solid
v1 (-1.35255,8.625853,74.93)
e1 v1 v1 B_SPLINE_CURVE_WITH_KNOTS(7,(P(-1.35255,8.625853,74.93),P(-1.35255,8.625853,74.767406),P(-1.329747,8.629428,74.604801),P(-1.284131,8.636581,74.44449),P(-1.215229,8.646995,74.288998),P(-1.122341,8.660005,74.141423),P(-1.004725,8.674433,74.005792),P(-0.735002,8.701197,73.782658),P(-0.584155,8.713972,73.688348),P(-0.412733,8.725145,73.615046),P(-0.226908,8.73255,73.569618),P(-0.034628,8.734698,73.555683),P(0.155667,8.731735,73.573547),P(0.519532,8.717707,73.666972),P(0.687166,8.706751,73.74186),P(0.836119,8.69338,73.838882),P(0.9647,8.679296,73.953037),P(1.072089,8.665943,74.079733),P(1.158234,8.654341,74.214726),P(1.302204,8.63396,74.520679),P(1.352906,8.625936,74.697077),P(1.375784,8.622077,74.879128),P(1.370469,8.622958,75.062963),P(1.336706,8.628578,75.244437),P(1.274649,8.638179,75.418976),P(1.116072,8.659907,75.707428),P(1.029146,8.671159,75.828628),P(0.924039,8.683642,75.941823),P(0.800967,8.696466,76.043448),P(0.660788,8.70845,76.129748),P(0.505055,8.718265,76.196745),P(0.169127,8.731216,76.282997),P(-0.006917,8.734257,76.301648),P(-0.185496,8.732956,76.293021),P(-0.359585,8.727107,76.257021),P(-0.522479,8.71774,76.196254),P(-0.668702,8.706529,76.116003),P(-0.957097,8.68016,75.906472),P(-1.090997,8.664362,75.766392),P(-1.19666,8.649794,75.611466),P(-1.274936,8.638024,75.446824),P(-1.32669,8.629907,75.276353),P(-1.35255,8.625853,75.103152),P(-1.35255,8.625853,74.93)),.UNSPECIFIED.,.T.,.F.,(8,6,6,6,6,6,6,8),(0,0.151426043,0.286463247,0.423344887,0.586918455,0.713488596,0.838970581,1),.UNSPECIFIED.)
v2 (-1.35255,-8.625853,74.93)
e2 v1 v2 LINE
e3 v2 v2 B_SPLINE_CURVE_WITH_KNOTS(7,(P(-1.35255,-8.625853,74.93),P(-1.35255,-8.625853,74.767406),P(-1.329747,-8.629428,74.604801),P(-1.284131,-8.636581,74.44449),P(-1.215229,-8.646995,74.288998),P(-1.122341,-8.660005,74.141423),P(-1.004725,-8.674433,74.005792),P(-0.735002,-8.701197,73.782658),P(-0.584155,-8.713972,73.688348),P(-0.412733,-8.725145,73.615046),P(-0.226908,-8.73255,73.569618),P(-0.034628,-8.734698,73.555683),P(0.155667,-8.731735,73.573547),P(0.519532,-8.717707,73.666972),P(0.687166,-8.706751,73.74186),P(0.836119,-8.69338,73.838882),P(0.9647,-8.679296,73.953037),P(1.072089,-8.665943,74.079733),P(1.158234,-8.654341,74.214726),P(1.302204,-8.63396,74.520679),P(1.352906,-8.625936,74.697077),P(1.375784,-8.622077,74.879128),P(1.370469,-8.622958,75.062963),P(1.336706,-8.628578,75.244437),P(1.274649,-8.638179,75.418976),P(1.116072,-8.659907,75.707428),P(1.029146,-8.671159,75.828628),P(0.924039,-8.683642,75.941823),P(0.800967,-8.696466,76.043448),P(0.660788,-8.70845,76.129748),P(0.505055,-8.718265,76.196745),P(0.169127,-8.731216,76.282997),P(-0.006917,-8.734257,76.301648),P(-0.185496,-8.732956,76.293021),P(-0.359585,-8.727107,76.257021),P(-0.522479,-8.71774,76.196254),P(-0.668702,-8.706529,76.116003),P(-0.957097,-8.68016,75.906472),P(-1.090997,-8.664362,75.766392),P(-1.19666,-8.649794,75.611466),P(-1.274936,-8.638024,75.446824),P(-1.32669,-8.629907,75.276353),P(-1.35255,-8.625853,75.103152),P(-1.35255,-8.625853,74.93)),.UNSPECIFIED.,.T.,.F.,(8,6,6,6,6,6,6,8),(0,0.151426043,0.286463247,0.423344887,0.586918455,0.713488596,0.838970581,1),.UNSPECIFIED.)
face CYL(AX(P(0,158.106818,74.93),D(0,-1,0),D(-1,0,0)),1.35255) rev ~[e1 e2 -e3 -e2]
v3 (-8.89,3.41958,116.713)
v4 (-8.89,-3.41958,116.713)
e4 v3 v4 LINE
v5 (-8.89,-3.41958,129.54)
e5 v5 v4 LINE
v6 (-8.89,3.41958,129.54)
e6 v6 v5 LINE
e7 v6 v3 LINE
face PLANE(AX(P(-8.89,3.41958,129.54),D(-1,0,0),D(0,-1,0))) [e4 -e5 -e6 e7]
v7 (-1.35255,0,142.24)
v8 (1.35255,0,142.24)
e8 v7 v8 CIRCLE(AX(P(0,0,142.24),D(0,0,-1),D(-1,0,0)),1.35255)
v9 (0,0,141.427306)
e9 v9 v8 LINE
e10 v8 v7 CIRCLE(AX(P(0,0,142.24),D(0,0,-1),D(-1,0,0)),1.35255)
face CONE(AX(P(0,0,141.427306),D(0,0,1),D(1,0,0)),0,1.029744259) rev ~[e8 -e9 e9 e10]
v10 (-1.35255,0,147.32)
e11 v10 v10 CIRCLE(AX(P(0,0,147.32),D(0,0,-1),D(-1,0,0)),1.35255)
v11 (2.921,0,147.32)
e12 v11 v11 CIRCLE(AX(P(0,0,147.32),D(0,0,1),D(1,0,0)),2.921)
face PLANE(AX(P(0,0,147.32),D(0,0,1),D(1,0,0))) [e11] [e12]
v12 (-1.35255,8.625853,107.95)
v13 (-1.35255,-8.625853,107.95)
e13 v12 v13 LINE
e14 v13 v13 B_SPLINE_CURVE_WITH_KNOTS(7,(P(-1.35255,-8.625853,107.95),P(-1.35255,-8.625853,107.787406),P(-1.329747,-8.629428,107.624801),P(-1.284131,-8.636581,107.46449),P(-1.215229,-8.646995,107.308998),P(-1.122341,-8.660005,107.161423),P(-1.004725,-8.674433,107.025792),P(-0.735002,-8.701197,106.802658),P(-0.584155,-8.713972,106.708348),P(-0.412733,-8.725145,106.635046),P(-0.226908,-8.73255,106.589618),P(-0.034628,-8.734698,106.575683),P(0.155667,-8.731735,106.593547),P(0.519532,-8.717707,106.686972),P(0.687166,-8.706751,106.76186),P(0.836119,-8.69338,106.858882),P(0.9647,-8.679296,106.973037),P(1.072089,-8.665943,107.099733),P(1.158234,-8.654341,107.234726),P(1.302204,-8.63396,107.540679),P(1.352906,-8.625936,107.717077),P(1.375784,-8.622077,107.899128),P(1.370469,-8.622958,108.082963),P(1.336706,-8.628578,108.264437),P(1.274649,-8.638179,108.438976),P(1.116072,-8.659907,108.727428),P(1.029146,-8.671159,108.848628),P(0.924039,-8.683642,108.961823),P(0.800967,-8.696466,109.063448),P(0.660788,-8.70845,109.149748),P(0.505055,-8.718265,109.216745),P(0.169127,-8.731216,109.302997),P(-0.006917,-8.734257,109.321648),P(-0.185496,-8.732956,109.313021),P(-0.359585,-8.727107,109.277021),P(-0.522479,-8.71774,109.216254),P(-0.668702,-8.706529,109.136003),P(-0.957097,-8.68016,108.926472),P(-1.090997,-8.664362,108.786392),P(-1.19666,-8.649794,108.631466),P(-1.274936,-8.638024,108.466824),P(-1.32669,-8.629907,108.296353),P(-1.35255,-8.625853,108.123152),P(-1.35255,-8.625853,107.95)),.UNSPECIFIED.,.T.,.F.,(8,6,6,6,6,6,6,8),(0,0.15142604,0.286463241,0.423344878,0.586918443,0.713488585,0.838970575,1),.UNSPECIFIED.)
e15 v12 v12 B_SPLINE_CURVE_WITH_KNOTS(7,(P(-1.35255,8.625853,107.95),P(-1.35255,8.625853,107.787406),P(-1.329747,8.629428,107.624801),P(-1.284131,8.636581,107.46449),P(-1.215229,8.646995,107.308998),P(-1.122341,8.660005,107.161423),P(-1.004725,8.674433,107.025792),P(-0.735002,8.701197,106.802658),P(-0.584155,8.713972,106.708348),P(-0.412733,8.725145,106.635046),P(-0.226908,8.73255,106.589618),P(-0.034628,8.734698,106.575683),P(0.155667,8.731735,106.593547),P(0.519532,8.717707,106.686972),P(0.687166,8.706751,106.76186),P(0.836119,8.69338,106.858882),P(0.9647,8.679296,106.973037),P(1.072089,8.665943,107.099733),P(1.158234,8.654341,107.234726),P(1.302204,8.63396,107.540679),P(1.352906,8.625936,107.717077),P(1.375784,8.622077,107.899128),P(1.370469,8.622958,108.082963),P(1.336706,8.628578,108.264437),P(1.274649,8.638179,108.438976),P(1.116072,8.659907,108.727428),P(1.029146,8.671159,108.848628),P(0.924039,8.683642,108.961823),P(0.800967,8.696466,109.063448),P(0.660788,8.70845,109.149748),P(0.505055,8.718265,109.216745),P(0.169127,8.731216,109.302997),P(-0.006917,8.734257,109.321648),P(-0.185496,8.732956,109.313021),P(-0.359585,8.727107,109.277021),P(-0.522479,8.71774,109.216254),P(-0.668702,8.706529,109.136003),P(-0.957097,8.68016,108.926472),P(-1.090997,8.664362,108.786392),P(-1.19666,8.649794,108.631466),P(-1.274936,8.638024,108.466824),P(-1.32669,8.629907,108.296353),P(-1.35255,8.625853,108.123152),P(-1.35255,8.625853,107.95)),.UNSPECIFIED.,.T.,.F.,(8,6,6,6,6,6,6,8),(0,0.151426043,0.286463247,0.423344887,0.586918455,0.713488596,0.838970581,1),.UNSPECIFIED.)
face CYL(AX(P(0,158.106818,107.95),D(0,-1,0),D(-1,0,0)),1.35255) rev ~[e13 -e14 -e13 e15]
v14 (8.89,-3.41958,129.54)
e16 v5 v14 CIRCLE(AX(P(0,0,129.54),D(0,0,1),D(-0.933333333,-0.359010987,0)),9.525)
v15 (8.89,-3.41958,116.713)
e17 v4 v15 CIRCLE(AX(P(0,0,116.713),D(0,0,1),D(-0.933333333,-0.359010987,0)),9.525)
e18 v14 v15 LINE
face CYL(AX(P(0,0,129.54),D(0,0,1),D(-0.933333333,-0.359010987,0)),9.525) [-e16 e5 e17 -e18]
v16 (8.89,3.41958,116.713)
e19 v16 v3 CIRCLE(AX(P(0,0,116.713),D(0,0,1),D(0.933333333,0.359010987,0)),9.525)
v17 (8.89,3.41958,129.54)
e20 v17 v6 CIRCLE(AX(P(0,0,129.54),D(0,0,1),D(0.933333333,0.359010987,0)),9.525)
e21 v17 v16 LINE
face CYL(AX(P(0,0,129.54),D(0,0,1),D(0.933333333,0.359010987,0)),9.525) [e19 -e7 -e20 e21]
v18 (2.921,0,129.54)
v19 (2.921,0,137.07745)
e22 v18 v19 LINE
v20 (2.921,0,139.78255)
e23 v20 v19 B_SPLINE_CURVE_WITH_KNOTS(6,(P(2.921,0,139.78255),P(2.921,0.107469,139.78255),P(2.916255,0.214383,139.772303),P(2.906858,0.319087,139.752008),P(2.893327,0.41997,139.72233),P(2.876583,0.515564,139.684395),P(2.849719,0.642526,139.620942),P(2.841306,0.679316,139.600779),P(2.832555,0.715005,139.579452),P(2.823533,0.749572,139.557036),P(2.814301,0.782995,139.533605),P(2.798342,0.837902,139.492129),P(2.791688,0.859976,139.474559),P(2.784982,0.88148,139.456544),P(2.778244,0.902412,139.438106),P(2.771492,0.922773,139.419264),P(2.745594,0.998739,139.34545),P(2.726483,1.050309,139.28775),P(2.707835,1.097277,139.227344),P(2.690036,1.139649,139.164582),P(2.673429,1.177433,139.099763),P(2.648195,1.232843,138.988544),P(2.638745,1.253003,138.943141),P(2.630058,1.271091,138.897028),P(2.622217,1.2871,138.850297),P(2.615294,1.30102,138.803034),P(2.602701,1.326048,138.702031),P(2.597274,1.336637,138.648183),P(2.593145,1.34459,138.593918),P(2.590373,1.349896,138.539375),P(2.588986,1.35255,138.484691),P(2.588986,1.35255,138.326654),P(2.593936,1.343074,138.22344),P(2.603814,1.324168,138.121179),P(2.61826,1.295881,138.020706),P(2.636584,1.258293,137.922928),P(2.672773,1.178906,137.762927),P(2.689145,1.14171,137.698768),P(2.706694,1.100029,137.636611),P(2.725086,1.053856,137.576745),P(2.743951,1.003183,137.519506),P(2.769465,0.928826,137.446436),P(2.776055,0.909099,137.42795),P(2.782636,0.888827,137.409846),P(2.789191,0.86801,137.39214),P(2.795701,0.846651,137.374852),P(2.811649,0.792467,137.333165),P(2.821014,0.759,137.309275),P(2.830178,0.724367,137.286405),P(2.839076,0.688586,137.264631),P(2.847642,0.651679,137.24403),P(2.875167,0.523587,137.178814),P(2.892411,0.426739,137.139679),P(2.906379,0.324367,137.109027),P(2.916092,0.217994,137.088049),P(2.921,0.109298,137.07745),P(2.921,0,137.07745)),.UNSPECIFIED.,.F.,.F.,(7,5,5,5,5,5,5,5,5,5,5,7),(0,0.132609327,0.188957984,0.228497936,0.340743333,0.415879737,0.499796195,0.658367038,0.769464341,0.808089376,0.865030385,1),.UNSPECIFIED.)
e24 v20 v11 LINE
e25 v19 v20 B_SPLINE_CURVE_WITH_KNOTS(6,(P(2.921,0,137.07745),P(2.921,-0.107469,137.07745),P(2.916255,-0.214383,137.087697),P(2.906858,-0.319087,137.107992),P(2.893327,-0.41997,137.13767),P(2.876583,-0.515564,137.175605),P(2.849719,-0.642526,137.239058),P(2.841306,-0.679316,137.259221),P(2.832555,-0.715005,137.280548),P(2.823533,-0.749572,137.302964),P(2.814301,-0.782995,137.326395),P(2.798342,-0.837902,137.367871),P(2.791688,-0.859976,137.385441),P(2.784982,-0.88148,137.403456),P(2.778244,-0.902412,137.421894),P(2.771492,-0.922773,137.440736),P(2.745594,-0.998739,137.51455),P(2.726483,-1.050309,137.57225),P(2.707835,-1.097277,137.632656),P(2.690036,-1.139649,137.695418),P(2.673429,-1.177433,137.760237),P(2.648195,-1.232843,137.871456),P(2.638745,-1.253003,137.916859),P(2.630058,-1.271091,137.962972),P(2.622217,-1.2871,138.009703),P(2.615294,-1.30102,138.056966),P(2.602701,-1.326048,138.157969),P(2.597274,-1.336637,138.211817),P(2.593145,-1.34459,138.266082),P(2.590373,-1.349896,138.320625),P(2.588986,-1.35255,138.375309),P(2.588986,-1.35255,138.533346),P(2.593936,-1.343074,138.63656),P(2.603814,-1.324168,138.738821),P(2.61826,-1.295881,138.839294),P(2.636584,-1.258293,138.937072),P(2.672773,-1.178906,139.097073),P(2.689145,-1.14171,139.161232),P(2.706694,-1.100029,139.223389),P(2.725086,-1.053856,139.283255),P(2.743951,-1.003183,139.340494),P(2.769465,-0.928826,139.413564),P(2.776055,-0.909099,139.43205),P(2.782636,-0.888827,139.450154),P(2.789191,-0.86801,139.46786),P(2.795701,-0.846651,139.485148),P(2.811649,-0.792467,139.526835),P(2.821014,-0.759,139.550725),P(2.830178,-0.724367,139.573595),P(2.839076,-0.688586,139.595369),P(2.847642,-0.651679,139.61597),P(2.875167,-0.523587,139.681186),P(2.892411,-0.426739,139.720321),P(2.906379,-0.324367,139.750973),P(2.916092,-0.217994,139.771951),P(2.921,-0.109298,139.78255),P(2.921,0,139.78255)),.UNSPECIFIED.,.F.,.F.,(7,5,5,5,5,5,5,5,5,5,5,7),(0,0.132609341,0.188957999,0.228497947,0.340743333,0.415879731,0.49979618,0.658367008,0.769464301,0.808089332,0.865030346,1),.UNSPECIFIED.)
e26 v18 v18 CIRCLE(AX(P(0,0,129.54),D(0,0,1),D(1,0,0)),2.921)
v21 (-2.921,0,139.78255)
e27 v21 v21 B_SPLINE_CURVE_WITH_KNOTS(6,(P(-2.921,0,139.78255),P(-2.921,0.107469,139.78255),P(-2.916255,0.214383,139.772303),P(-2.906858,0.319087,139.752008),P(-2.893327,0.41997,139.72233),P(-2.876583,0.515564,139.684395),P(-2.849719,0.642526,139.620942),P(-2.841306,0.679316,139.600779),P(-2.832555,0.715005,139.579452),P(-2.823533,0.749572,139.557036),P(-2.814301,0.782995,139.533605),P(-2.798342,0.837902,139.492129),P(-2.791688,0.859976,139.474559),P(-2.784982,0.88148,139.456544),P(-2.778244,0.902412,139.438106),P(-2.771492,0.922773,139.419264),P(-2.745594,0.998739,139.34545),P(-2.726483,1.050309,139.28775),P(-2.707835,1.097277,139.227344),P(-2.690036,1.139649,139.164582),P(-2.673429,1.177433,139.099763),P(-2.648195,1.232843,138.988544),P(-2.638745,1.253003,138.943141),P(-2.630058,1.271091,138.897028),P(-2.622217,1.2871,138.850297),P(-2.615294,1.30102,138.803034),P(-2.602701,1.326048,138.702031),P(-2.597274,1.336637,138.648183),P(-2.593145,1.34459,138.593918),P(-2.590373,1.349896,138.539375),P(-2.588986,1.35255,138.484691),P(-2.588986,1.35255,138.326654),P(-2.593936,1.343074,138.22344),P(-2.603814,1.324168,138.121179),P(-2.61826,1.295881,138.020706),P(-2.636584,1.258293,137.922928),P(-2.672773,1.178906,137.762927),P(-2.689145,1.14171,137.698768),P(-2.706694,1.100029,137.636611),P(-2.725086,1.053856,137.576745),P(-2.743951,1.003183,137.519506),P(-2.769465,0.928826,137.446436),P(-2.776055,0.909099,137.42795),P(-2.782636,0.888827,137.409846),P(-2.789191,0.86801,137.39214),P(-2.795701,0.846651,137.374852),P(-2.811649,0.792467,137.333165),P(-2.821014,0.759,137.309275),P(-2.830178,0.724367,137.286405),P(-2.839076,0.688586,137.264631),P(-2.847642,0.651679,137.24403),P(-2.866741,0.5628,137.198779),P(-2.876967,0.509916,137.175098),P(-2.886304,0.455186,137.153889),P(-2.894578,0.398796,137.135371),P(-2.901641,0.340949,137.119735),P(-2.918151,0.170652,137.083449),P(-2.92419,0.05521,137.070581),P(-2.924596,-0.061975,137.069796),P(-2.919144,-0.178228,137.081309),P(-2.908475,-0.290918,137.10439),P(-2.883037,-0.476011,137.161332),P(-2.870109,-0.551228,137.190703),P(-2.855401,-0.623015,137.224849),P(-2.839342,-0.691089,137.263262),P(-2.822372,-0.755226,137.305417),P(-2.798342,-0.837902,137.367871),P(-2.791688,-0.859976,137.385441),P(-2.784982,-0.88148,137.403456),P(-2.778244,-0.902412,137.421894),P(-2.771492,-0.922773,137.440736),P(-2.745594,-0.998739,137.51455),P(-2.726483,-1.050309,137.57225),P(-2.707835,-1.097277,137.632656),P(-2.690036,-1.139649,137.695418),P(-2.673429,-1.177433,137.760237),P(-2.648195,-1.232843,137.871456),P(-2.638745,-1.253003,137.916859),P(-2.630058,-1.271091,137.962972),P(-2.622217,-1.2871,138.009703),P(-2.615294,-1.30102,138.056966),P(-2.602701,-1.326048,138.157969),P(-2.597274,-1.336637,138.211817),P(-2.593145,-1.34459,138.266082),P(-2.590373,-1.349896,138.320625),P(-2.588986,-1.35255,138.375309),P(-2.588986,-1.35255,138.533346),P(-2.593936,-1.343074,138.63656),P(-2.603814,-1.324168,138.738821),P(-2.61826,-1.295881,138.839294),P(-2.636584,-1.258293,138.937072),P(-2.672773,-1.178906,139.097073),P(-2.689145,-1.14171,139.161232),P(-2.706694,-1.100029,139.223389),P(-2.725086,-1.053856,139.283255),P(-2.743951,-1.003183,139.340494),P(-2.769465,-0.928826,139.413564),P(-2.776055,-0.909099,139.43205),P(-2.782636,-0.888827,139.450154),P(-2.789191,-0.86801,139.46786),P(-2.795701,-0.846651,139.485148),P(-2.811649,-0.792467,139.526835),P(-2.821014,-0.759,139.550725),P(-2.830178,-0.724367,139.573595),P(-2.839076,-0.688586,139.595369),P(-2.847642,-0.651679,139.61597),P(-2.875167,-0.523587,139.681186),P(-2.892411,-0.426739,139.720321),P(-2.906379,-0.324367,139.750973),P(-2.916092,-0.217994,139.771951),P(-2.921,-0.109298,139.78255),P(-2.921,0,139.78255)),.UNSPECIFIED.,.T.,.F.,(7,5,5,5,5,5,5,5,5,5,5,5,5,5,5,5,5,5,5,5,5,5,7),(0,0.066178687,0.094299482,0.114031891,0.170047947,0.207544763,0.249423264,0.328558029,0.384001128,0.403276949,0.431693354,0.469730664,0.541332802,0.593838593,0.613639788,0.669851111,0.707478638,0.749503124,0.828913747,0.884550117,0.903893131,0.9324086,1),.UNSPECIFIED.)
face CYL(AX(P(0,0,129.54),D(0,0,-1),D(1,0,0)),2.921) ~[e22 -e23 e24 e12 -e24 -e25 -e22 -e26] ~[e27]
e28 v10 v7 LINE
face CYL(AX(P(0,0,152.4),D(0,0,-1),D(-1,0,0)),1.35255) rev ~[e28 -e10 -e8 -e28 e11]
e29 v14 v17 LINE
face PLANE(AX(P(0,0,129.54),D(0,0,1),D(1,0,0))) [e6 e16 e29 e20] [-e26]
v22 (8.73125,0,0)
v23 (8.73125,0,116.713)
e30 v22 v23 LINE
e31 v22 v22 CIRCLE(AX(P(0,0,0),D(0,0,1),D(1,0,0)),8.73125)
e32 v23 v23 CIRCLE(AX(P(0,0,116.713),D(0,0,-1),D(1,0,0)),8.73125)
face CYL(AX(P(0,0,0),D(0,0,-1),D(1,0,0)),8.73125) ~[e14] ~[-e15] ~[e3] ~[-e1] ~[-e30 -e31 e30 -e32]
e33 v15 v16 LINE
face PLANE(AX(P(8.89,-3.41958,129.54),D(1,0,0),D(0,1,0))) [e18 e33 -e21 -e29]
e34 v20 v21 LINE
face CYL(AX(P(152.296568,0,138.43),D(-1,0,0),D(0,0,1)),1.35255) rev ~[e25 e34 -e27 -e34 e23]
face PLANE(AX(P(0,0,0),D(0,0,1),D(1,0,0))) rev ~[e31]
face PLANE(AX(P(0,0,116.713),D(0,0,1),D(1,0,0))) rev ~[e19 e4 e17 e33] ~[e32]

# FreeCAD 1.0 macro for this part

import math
import FreeCAD as App
import Part
import Sketcher

V = App.Vector
Q = App.Units.Quantity

doc = App.newDocument("Part")
body = doc.addObject("PartDesign::Body", "Body")

# Sketch on XY plane
sketch1 = doc.addObject("Sketcher::SketchObject", "Sketch")
body.addObject(sketch1)
sketch1.AttachmentSupport = (doc.XY_Plane, [""])
sketch1.MapMode = "FlatFace"
sketch1.addGeometry(Part.Circle(V(0, 0, 0), V(0, 0, 1), 9), False)
sketch1.addConstraint([
    Sketcher.Constraint("Coincident", 0, 3, -1, 1),
    Sketcher.Constraint("Diameter", 0, Q("0.6875 in")),
])
pad1 = doc.addObject("PartDesign::Pad", "Pad")
body.addObject(pad1)
pad1.Profile = sketch1
pad1.Length = Q("5.1 in")

# Sketch on XY plane
sketch2 = doc.addObject("Sketcher::SketchObject", "Sketch001")
body.addObject(sketch2)
sketch2.AttachmentSupport = (doc.XY_Plane, [""])
sketch2.MapMode = "FlatFace"
sketch2.AttachmentOffset = App.Placement(V(0, 0, 5.1 * 25.4), App.Rotation())
sketch2.addGeometry(Part.Circle(V(0, 0, 0), V(0, 0, 1), 2.9), False)
sketch2.addConstraint([
    Sketcher.Constraint("Coincident", 0, 3, -1, 1),
    Sketcher.Constraint("Diameter", 0, Q("0.23 in")),
])
pad2 = doc.addObject("PartDesign::Pad", "Pad001")
body.addObject(pad2)
pad2.Profile = sketch2
pad2.Length = Q("0.7 in")

# Sketch on XZ plane
sketch3 = doc.addObject("Sketcher::SketchObject", "Sketch002")
body.addObject(sketch3)
sketch3.AttachmentSupport = (doc.XZ_Plane, [""])
sketch3.MapMode = "FlatFace"
sketch3.AttachmentOffset = App.Placement(V(0, 0, -0.34375 * 25.4), App.Rotation())
sketch3.addGeometry([
    Part.Circle(V(0, 74.9, 0), V(0, 0, 1), 1.4),
    Part.Circle(V(0, 108, 0), V(0, 0, 1), 1.4),
], False)
sketch3.addConstraint([
    Sketcher.Constraint("Equal", 0, 1),
    Sketcher.Constraint("PointOnObject", 0, 3, -2),
    Sketcher.Constraint("PointOnObject", 1, 3, -2),
    Sketcher.Constraint("Diameter", 0, Q("0.1065 in")),
    Sketcher.Constraint("DistanceY", 0, 3, 1, 3, Q("1.3 in")),
    Sketcher.Constraint("DistanceY", -1, 1, 0, 3, Q("2.95 in")),
])
doc.recompute()
hole = doc.addObject("PartDesign::Hole", "Hole")
body.addObject(hole)
hole.Profile = sketch3
hole.ThreadType = "None"
hole.Diameter = Q("0.1065 in")
hole.DepthType = "ThroughAll"
hole.Reversed = True

# Sketch on YZ plane
sketch4 = doc.addObject("Sketcher::SketchObject", "Sketch003")
body.addObject(sketch4)
sketch4.AttachmentSupport = (doc.YZ_Plane, [""])
sketch4.MapMode = "FlatFace"
sketch4.AttachmentOffset = App.Placement(V(0, 0, 0.115 * 25.4), App.Rotation())
sketch4.addGeometry(Part.Circle(V(0, 138.4, 0), V(0, 0, 1), 1.4), False)
sketch4.addConstraint([
    Sketcher.Constraint("PointOnObject", 0, 3, -2),
    Sketcher.Constraint("Diameter", 0, Q("0.1065 in")),
    Sketcher.Constraint("DistanceY", -1, 1, 0, 3, Q("5.45 in")),
])
doc.recompute()
hole2 = doc.addObject("PartDesign::Hole", "Hole001")
body.addObject(hole2)
hole2.Profile = sketch4
hole2.ThreadType = "None"
hole2.Diameter = Q("0.1065 in")
hole2.DepthType = "ThroughAll"

# Sketch on XY plane
sketch5 = doc.addObject("Sketcher::SketchObject", "Sketch004")
body.addObject(sketch5)
sketch5.AttachmentSupport = (doc.XY_Plane, [""])
sketch5.MapMode = "FlatFace"
sketch5.AttachmentOffset = App.Placement(V(0, 0, 5.1 * 25.4), App.Rotation())
sketch5.addGeometry([
    Part.LineSegment(V(9, -3, 0), V(9, 3, 0)),
    Part.ArcOfCircle(Part.Circle(V(0, 0, 0), V(0, 0, 1), 10), math.radians(21), math.radians(159)),
    Part.LineSegment(V(-9, 3, 0), V(-9, -3, 0)),
    Part.ArcOfCircle(Part.Circle(V(0, 0, 0), V(0, 0, 1), 10), math.radians(-159), math.radians(-21)),
], False)
sketch5.addConstraint([
    Sketcher.Constraint("Coincident", 0, 2, 1, 1),
    Sketcher.Constraint("Coincident", 1, 2, 2, 1),
    Sketcher.Constraint("Coincident", 2, 2, 3, 1),
    Sketcher.Constraint("Coincident", 3, 2, 0, 1),
    Sketcher.Constraint("Vertical", 0),
    Sketcher.Constraint("Vertical", 2),
    Sketcher.Constraint("Coincident", 1, 3, -1, 1),
    Sketcher.Constraint("Coincident", 3, 3, -1, 1),
    Sketcher.Constraint("Equal", 1, 3),
    Sketcher.Constraint("Horizontal", 0, 2, 1, 2),
    Sketcher.Constraint("Radius", 1, Q("0.375 in")),
    Sketcher.Constraint("DistanceX", 1, 2, 0, 2, Q("0.7 in")),
])
pad3 = doc.addObject("PartDesign::Pad", "Pad002")
body.addObject(pad3)
pad3.Profile = sketch5
pad3.Length = Q("0.505 in")
pad3.Reversed = True

# Sketch on XY plane
sketch6 = doc.addObject("Sketcher::SketchObject", "Sketch005")
body.addObject(sketch6)
sketch6.AttachmentSupport = (doc.XY_Plane, [""])
sketch6.MapMode = "FlatFace"
sketch6.AttachmentOffset = App.Placement(V(0, 0, 5.8 * 25.4), App.Rotation())
sketch6.addGeometry(Part.Circle(V(0, 0, 0), V(0, 0, 1), 1.4), False)
sketch6.addConstraint([
    Sketcher.Constraint("Coincident", 0, 3, -1, 1),
    Sketcher.Constraint("Diameter", 0, Q("0.1065 in")),
])
doc.recompute()
hole3 = doc.addObject("PartDesign::Hole", "Hole002")
body.addObject(hole3)
hole3.Profile = sketch6
hole3.ThreadType = "None"
hole3.Diameter = Q("0.1065 in")
hole3.DepthType = "Dimension"
hole3.Depth = Q("0.2 in")
hole3.DrillPoint = "Angled"
hole3.DrillPointAngle = 118

doc.recompute()
